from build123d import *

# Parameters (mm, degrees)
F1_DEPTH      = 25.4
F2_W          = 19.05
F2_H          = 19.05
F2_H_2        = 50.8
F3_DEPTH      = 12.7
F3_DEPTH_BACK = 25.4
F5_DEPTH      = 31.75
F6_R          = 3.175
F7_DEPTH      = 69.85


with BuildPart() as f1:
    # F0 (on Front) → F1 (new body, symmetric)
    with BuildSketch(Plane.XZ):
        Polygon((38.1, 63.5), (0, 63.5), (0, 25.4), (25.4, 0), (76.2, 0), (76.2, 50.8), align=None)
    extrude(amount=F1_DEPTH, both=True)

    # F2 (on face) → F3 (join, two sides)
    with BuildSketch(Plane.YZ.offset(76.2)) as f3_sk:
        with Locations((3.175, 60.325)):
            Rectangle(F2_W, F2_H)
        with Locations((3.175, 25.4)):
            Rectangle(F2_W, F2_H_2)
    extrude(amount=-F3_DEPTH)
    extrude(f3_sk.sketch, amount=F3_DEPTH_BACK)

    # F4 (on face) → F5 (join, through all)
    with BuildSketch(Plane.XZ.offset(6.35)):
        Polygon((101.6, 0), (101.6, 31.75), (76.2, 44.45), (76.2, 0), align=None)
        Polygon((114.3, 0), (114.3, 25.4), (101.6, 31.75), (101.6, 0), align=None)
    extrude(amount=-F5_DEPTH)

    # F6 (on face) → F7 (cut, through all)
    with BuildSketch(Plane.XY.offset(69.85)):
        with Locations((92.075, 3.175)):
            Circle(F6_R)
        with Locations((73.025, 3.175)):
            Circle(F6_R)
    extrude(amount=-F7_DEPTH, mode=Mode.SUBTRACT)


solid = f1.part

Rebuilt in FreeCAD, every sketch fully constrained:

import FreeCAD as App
import Part
import Sketcher
Q = App.Units.Quantity


def add_polygon(sketch, points):
    """Adds a closed chain of lines whose ends are joined by coincident constraints."""
    first, n = sketch.GeometryCount, len(points)
    for a, b in zip(points, points[1:] + points[:1]):
        sketch.addGeometry(Part.LineSegment(App.Vector(*a, 0), App.Vector(*b, 0)), False)
    for i in range(n):
        sketch.addConstraint(Sketcher.Constraint("Coincident", first + i, 2, first + (i + 1) % n, 1))

doc = App.newDocument("Part")
params = doc.addObject("Spreadsheet::Sheet", "Params")
for row, (alias, value) in enumerate([
    ("sketch1_width", "2 in"),
    ("sketch1_width2", "1.5 in"),
    ("pad1_length", "2 in"),
    ("sketch2_width", "0.75 in"),
    ("sketch2_height", "2.75 in"),
    ("pad2_length", "0.5 in"),
    ("pad2_length2", "1 in"),
    ("sketch3_height", "1 in"),
    ("sketch3_width", "1.5 in"),
    ("sketch3_height2", "1.75 in"),
    ("pad3_length", "1.25 in"),
    ("sketch4_diameter", "0.25 in"),
], start=1):
    params.set(f"A{row}", alias)
    params.set(f"B{row}", "=" + value)
    params.setAlias(f"B{row}", alias)

body = doc.addObject("PartDesign::Body", "Body")

# Sketch on XZ plane
sketch1 = body.newObject("Sketcher::SketchObject", "Sketch")
sketch1.AttachmentSupport = (doc.getObject("XZ_Plane"), [""])
sketch1.MapMode = "FlatFace"
add_polygon(sketch1, [(38, 64), (0, 64), (0, 25), (25, 0), (76, 0), (76, 51)])  # lines 0-5
sketch1.addConstraint(Sketcher.Constraint("Horizontal", 0))
sketch1.addConstraint(Sketcher.Constraint("Vertical", 1))
sketch1.addConstraint(Sketcher.Constraint("Horizontal", 3))
sketch1.addConstraint(Sketcher.Constraint("Vertical", 4))
sketch1.addConstraint(Sketcher.Constraint("PointOnObject", 0, 2, -2))
sketch1.addConstraint(Sketcher.Constraint("PointOnObject", 2, 2, -1))
sketch1.addConstraint(Sketcher.Constraint("Equal", 0, 1))
sketch1.addConstraint(Sketcher.Constraint("Equal", 3, 4))
sketch1.addConstraint(Sketcher.Constraint("DistanceX", 3, 1, 3, 2, Q("2 in")))
sketch1.addConstraint(Sketcher.Constraint("DistanceX", 0, 2, 0, 1, Q("1.5 in")))
sketch1.addConstraint(Sketcher.Constraint("DistanceY", -1, 1, 1, 2, Q("1 in")))
sketch1.addConstraint(Sketcher.Constraint("DistanceX", -1, 1, 2, 2, Q("1 in")))
sketch1.setExpression("Constraints[14]", "Params.sketch1_width")
sketch1.setExpression("Constraints[15]", "Params.sketch1_width2")
pad1 = body.newObject("PartDesign::Pad", "Pad")
pad1.Profile = sketch1
pad1.setExpression("Length", "Params.pad1_length")
pad1.Midplane = True

# Sketch on YZ plane
sketch2 = body.newObject("Sketcher::SketchObject", "Sketch001")
sketch2.AttachmentSupport = (doc.getObject("YZ_Plane"), [""])
sketch2.MapMode = "FlatFace"
sketch2.AttachmentOffset = App.Placement(App.Vector(0, 0, 3 * 25.4), App.Rotation())
add_polygon(sketch2, [(-6, 70), (-6, 0), (13, 0), (13, 70)])  # lines 0-3
sketch2.addConstraint(Sketcher.Constraint("Vertical", 0))
sketch2.addConstraint(Sketcher.Constraint("Horizontal", 1))
sketch2.addConstraint(Sketcher.Constraint("Vertical", 2))
sketch2.addConstraint(Sketcher.Constraint("Horizontal", 3))
sketch2.addConstraint(Sketcher.Constraint("PointOnObject", 0, 2, -1))
sketch2.addConstraint(Sketcher.Constraint("DistanceX", 1, 1, 1, 2, Q("0.75 in")))
sketch2.addConstraint(Sketcher.Constraint("DistanceY", 0, 2, 0, 1, Q("2.75 in")))
sketch2.addConstraint(Sketcher.Constraint("DistanceX", -1, 1, 1, 2, Q("0.5 in")))
sketch2.setExpression("Constraints[9]", "Params.sketch2_width")
sketch2.setExpression("Constraints[10]", "Params.sketch2_height")
pad2 = body.newObject("PartDesign::Pad", "Pad001")
pad2.Profile = sketch2
pad2.Type = "TwoLengths"
pad2.setExpression("Length", "Params.pad2_length")
pad2.setExpression("Length2", "Params.pad2_length2")
pad2.Reversed = True

# Sketch on XZ plane
sketch3 = body.newObject("Sketcher::SketchObject", "Sketch002")
sketch3.AttachmentSupport = (doc.getObject("XZ_Plane"), [""])
sketch3.MapMode = "FlatFace"
sketch3.AttachmentOffset = App.Placement(App.Vector(0, 0, 0.25 * 25.4), App.Rotation())
add_polygon(sketch3, [(76, 44), (76, 0), (114, 0), (114, 25)])  # lines 0-3
sketch3.addConstraint(Sketcher.Constraint("Vertical", 0))
sketch3.addConstraint(Sketcher.Constraint("Horizontal", 1))
sketch3.addConstraint(Sketcher.Constraint("Vertical", 2))
sketch3.addConstraint(Sketcher.Constraint("PointOnObject", 0, 2, -1))
sketch3.addConstraint(Sketcher.Constraint("DistanceY", 2, 1, 2, 2, Q("1 in")))
sketch3.addConstraint(Sketcher.Constraint("DistanceX", 1, 1, 1, 2, Q("1.5 in")))
sketch3.addConstraint(Sketcher.Constraint("DistanceX", -1, 1, 0, 2, Q("3 in")))
sketch3.addConstraint(Sketcher.Constraint("DistanceY", 0, 2, 0, 1, Q("1.75 in")))
sketch3.setExpression("Constraints[8]", "Params.sketch3_height")
sketch3.setExpression("Constraints[9]", "Params.sketch3_width")
sketch3.setExpression("Constraints[11]", "Params.sketch3_height2")
pad3 = body.newObject("PartDesign::Pad", "Pad002")
pad3.Profile = sketch3
pad3.setExpression("Length", "Params.pad3_length")
pad3.Reversed = True

# Sketch on XY plane
sketch4 = body.newObject("Sketcher::SketchObject", "Sketch003")
sketch4.AttachmentSupport = (doc.getObject("XY_Plane"), [""])
sketch4.MapMode = "FlatFace"
sketch4.AttachmentOffset = App.Placement(App.Vector(0, 0, 2.75 * 25.4), App.Rotation())
sketch4.addGeometry(Part.Circle(App.Vector(92.1, 3.2, 0), App.Vector(0, 0, 1), 3.2), False)
sketch4.addGeometry(Part.Circle(App.Vector(73, 3.2, 0), App.Vector(0, 0, 1), 3.2), False)
sketch4.addConstraint(Sketcher.Constraint("Equal", 0, 1))
sketch4.addConstraint(Sketcher.Constraint("Horizontal", 0, 3, 1, 3))
sketch4.addConstraint(Sketcher.Constraint("Diameter", 0, Q("0.25 in")))
sketch4.addConstraint(Sketcher.Constraint("DistanceX", 1, 3, 0, 3, Q("0.75 in")))
sketch4.addConstraint(Sketcher.Constraint("DistanceX", -1, 1, 0, 3, Q("3.625 in")))
sketch4.addConstraint(Sketcher.Constraint("DistanceY", -1, 1, 0, 3, Q("0.125 in")))
sketch4.setExpression("Constraints[2]", "Params.sketch4_diameter")
pocket1 = body.newObject("PartDesign::Pocket", "Pocket")
pocket1.Profile = sketch4
pocket1.Type = "ThroughAll"

doc.recompute()
